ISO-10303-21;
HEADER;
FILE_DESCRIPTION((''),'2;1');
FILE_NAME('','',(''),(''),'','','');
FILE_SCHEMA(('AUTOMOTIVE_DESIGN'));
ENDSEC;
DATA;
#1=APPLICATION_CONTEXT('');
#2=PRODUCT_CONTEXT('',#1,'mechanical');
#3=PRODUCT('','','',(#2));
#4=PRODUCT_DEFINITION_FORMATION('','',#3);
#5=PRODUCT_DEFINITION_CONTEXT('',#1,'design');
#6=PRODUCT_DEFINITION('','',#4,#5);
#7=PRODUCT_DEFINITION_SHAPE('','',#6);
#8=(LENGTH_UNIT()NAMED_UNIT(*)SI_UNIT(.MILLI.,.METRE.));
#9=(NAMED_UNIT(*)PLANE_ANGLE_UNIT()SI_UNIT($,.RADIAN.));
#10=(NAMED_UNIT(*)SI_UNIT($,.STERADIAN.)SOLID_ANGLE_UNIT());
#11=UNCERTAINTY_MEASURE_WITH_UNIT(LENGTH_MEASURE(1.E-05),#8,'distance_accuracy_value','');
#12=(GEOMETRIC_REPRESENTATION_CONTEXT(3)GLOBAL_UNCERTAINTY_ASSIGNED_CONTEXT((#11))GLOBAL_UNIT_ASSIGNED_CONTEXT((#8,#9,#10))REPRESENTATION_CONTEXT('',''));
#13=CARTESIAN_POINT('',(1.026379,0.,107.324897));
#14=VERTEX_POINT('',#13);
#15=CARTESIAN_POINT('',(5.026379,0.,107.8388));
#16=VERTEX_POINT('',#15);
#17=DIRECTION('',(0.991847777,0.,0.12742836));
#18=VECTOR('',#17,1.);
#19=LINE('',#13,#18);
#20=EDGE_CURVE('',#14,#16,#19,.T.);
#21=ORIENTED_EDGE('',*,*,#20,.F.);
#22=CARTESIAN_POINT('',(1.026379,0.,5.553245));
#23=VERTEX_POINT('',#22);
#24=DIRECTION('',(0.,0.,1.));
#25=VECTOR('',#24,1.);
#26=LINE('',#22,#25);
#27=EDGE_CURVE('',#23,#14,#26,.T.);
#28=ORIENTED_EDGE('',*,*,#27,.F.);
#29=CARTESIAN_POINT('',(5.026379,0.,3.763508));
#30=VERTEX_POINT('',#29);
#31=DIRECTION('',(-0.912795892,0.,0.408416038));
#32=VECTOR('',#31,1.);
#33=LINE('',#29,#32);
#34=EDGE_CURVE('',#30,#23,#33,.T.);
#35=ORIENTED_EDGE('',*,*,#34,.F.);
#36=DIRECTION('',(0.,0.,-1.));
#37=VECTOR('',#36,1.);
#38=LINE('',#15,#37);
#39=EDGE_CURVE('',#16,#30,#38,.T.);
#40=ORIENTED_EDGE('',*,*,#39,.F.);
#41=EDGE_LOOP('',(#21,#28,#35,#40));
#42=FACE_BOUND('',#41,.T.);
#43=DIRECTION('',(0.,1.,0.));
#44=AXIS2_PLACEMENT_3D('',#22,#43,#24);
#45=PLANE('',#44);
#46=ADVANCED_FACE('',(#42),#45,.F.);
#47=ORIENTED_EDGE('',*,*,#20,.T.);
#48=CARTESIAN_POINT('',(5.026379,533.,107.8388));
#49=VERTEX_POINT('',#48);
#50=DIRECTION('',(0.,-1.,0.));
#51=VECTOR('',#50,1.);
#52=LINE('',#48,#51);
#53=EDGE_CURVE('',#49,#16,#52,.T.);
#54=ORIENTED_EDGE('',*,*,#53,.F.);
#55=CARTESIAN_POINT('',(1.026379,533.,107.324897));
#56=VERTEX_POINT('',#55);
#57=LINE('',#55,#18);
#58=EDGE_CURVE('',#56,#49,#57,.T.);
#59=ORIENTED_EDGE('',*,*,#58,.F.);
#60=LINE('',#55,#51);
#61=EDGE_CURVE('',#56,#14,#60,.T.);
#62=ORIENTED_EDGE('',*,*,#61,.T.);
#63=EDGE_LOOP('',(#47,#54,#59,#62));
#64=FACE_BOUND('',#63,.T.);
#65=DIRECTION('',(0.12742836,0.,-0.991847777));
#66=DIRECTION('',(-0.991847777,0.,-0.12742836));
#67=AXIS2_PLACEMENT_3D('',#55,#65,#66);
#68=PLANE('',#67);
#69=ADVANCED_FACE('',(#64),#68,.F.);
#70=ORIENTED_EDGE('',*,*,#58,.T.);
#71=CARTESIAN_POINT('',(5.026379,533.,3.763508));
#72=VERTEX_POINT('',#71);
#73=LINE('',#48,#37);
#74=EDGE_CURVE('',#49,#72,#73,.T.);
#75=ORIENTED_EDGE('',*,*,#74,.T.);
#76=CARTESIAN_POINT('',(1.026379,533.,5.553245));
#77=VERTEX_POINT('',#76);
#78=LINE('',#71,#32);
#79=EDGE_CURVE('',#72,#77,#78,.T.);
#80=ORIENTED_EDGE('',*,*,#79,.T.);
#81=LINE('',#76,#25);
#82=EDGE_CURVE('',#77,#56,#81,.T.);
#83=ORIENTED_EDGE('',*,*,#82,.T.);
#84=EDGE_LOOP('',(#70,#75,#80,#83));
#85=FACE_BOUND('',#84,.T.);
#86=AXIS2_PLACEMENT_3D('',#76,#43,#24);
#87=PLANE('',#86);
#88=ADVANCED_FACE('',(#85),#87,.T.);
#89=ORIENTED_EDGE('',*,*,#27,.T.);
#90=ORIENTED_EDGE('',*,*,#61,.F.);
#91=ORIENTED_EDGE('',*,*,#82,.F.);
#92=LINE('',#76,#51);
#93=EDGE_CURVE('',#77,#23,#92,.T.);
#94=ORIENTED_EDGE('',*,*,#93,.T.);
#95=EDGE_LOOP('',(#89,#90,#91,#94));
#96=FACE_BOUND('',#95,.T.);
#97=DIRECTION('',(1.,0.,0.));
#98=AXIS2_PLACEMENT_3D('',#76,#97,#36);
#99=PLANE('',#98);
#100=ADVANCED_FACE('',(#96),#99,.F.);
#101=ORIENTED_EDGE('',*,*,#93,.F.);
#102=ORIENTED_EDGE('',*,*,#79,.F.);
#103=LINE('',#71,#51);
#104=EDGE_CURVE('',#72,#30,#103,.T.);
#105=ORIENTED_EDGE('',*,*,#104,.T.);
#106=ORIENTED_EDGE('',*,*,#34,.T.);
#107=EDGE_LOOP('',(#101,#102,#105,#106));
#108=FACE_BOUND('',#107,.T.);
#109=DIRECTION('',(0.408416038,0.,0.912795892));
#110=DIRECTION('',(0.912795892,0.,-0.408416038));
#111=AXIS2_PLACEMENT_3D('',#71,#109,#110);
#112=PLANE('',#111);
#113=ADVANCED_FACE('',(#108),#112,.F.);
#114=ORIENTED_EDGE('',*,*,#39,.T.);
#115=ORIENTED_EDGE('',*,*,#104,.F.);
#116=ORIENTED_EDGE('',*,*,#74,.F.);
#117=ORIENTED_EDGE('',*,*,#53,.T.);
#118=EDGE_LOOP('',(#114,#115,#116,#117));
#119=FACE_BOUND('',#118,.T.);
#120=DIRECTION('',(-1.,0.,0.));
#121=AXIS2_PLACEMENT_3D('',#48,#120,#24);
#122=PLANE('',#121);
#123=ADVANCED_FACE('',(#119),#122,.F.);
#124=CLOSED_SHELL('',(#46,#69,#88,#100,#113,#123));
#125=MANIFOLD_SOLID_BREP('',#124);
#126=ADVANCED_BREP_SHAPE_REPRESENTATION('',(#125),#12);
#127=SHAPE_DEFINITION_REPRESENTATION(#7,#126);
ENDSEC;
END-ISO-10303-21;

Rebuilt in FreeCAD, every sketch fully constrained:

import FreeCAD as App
import Part
import Sketcher

V = App.Vector
Q = App.Units.Quantity


def add_polygon(sketch, points):
    """Adds a closed chain of lines whose ends are joined by coincident constraints."""
    first, n = sketch.GeometryCount, len(points)
    for a, b in zip(points, points[1:] + points[:1]):
        sketch.addGeometry(Part.LineSegment(App.Vector(*a, 0), App.Vector(*b, 0)), False)
    for i in range(n):
        sketch.addConstraint(Sketcher.Constraint("Coincident", first + i, 2, first + (i + 1) % n, 1))

doc = App.newDocument("Part")
body = doc.addObject("PartDesign::Body", "Body")

sketch1 = body.newObject("Sketcher::SketchObject", "Sketch")
sketch1.AttachmentSupport = (doc.getObject("XZ_Plane"), [""])
sketch1.MapMode = "FlatFace"
add_polygon(sketch1, [(1, 5.6), (1, 107.3), (5, 107.8), (5, 3.8)])
sketch1.addConstraint(Sketcher.Constraint("Vertical", 0))
sketch1.addConstraint(Sketcher.Constraint("Vertical", 2))
sketch1.addConstraint(Sketcher.Constraint("DistanceX", 0, 2, 1, 2, Q("4 mm")))
sketch1.addConstraint(Sketcher.Constraint("DistanceY", 2, 2, 2, 1, Q("104.075292 mm")))
sketch1.addConstraint(Sketcher.Constraint("DistanceY", -1, 1, 1, 2, Q("107.8388 mm")))
sketch1.addConstraint(Sketcher.Constraint("Distance", 3, Q("4.382141 mm")))
sketch1.addConstraint(Sketcher.Constraint("DistanceY", 0, 1, 0, 2, Q("101.771652 mm")))
sketch1.addConstraint(Sketcher.Constraint("DistanceX", -1, 1, 0, 2, Q("1.026379 mm")))
pad1 = body.newObject("PartDesign::Pad", "Pad")
pad1.Profile = sketch1
pad1.Length = 533
pad1.Reversed = True

doc.recompute()
